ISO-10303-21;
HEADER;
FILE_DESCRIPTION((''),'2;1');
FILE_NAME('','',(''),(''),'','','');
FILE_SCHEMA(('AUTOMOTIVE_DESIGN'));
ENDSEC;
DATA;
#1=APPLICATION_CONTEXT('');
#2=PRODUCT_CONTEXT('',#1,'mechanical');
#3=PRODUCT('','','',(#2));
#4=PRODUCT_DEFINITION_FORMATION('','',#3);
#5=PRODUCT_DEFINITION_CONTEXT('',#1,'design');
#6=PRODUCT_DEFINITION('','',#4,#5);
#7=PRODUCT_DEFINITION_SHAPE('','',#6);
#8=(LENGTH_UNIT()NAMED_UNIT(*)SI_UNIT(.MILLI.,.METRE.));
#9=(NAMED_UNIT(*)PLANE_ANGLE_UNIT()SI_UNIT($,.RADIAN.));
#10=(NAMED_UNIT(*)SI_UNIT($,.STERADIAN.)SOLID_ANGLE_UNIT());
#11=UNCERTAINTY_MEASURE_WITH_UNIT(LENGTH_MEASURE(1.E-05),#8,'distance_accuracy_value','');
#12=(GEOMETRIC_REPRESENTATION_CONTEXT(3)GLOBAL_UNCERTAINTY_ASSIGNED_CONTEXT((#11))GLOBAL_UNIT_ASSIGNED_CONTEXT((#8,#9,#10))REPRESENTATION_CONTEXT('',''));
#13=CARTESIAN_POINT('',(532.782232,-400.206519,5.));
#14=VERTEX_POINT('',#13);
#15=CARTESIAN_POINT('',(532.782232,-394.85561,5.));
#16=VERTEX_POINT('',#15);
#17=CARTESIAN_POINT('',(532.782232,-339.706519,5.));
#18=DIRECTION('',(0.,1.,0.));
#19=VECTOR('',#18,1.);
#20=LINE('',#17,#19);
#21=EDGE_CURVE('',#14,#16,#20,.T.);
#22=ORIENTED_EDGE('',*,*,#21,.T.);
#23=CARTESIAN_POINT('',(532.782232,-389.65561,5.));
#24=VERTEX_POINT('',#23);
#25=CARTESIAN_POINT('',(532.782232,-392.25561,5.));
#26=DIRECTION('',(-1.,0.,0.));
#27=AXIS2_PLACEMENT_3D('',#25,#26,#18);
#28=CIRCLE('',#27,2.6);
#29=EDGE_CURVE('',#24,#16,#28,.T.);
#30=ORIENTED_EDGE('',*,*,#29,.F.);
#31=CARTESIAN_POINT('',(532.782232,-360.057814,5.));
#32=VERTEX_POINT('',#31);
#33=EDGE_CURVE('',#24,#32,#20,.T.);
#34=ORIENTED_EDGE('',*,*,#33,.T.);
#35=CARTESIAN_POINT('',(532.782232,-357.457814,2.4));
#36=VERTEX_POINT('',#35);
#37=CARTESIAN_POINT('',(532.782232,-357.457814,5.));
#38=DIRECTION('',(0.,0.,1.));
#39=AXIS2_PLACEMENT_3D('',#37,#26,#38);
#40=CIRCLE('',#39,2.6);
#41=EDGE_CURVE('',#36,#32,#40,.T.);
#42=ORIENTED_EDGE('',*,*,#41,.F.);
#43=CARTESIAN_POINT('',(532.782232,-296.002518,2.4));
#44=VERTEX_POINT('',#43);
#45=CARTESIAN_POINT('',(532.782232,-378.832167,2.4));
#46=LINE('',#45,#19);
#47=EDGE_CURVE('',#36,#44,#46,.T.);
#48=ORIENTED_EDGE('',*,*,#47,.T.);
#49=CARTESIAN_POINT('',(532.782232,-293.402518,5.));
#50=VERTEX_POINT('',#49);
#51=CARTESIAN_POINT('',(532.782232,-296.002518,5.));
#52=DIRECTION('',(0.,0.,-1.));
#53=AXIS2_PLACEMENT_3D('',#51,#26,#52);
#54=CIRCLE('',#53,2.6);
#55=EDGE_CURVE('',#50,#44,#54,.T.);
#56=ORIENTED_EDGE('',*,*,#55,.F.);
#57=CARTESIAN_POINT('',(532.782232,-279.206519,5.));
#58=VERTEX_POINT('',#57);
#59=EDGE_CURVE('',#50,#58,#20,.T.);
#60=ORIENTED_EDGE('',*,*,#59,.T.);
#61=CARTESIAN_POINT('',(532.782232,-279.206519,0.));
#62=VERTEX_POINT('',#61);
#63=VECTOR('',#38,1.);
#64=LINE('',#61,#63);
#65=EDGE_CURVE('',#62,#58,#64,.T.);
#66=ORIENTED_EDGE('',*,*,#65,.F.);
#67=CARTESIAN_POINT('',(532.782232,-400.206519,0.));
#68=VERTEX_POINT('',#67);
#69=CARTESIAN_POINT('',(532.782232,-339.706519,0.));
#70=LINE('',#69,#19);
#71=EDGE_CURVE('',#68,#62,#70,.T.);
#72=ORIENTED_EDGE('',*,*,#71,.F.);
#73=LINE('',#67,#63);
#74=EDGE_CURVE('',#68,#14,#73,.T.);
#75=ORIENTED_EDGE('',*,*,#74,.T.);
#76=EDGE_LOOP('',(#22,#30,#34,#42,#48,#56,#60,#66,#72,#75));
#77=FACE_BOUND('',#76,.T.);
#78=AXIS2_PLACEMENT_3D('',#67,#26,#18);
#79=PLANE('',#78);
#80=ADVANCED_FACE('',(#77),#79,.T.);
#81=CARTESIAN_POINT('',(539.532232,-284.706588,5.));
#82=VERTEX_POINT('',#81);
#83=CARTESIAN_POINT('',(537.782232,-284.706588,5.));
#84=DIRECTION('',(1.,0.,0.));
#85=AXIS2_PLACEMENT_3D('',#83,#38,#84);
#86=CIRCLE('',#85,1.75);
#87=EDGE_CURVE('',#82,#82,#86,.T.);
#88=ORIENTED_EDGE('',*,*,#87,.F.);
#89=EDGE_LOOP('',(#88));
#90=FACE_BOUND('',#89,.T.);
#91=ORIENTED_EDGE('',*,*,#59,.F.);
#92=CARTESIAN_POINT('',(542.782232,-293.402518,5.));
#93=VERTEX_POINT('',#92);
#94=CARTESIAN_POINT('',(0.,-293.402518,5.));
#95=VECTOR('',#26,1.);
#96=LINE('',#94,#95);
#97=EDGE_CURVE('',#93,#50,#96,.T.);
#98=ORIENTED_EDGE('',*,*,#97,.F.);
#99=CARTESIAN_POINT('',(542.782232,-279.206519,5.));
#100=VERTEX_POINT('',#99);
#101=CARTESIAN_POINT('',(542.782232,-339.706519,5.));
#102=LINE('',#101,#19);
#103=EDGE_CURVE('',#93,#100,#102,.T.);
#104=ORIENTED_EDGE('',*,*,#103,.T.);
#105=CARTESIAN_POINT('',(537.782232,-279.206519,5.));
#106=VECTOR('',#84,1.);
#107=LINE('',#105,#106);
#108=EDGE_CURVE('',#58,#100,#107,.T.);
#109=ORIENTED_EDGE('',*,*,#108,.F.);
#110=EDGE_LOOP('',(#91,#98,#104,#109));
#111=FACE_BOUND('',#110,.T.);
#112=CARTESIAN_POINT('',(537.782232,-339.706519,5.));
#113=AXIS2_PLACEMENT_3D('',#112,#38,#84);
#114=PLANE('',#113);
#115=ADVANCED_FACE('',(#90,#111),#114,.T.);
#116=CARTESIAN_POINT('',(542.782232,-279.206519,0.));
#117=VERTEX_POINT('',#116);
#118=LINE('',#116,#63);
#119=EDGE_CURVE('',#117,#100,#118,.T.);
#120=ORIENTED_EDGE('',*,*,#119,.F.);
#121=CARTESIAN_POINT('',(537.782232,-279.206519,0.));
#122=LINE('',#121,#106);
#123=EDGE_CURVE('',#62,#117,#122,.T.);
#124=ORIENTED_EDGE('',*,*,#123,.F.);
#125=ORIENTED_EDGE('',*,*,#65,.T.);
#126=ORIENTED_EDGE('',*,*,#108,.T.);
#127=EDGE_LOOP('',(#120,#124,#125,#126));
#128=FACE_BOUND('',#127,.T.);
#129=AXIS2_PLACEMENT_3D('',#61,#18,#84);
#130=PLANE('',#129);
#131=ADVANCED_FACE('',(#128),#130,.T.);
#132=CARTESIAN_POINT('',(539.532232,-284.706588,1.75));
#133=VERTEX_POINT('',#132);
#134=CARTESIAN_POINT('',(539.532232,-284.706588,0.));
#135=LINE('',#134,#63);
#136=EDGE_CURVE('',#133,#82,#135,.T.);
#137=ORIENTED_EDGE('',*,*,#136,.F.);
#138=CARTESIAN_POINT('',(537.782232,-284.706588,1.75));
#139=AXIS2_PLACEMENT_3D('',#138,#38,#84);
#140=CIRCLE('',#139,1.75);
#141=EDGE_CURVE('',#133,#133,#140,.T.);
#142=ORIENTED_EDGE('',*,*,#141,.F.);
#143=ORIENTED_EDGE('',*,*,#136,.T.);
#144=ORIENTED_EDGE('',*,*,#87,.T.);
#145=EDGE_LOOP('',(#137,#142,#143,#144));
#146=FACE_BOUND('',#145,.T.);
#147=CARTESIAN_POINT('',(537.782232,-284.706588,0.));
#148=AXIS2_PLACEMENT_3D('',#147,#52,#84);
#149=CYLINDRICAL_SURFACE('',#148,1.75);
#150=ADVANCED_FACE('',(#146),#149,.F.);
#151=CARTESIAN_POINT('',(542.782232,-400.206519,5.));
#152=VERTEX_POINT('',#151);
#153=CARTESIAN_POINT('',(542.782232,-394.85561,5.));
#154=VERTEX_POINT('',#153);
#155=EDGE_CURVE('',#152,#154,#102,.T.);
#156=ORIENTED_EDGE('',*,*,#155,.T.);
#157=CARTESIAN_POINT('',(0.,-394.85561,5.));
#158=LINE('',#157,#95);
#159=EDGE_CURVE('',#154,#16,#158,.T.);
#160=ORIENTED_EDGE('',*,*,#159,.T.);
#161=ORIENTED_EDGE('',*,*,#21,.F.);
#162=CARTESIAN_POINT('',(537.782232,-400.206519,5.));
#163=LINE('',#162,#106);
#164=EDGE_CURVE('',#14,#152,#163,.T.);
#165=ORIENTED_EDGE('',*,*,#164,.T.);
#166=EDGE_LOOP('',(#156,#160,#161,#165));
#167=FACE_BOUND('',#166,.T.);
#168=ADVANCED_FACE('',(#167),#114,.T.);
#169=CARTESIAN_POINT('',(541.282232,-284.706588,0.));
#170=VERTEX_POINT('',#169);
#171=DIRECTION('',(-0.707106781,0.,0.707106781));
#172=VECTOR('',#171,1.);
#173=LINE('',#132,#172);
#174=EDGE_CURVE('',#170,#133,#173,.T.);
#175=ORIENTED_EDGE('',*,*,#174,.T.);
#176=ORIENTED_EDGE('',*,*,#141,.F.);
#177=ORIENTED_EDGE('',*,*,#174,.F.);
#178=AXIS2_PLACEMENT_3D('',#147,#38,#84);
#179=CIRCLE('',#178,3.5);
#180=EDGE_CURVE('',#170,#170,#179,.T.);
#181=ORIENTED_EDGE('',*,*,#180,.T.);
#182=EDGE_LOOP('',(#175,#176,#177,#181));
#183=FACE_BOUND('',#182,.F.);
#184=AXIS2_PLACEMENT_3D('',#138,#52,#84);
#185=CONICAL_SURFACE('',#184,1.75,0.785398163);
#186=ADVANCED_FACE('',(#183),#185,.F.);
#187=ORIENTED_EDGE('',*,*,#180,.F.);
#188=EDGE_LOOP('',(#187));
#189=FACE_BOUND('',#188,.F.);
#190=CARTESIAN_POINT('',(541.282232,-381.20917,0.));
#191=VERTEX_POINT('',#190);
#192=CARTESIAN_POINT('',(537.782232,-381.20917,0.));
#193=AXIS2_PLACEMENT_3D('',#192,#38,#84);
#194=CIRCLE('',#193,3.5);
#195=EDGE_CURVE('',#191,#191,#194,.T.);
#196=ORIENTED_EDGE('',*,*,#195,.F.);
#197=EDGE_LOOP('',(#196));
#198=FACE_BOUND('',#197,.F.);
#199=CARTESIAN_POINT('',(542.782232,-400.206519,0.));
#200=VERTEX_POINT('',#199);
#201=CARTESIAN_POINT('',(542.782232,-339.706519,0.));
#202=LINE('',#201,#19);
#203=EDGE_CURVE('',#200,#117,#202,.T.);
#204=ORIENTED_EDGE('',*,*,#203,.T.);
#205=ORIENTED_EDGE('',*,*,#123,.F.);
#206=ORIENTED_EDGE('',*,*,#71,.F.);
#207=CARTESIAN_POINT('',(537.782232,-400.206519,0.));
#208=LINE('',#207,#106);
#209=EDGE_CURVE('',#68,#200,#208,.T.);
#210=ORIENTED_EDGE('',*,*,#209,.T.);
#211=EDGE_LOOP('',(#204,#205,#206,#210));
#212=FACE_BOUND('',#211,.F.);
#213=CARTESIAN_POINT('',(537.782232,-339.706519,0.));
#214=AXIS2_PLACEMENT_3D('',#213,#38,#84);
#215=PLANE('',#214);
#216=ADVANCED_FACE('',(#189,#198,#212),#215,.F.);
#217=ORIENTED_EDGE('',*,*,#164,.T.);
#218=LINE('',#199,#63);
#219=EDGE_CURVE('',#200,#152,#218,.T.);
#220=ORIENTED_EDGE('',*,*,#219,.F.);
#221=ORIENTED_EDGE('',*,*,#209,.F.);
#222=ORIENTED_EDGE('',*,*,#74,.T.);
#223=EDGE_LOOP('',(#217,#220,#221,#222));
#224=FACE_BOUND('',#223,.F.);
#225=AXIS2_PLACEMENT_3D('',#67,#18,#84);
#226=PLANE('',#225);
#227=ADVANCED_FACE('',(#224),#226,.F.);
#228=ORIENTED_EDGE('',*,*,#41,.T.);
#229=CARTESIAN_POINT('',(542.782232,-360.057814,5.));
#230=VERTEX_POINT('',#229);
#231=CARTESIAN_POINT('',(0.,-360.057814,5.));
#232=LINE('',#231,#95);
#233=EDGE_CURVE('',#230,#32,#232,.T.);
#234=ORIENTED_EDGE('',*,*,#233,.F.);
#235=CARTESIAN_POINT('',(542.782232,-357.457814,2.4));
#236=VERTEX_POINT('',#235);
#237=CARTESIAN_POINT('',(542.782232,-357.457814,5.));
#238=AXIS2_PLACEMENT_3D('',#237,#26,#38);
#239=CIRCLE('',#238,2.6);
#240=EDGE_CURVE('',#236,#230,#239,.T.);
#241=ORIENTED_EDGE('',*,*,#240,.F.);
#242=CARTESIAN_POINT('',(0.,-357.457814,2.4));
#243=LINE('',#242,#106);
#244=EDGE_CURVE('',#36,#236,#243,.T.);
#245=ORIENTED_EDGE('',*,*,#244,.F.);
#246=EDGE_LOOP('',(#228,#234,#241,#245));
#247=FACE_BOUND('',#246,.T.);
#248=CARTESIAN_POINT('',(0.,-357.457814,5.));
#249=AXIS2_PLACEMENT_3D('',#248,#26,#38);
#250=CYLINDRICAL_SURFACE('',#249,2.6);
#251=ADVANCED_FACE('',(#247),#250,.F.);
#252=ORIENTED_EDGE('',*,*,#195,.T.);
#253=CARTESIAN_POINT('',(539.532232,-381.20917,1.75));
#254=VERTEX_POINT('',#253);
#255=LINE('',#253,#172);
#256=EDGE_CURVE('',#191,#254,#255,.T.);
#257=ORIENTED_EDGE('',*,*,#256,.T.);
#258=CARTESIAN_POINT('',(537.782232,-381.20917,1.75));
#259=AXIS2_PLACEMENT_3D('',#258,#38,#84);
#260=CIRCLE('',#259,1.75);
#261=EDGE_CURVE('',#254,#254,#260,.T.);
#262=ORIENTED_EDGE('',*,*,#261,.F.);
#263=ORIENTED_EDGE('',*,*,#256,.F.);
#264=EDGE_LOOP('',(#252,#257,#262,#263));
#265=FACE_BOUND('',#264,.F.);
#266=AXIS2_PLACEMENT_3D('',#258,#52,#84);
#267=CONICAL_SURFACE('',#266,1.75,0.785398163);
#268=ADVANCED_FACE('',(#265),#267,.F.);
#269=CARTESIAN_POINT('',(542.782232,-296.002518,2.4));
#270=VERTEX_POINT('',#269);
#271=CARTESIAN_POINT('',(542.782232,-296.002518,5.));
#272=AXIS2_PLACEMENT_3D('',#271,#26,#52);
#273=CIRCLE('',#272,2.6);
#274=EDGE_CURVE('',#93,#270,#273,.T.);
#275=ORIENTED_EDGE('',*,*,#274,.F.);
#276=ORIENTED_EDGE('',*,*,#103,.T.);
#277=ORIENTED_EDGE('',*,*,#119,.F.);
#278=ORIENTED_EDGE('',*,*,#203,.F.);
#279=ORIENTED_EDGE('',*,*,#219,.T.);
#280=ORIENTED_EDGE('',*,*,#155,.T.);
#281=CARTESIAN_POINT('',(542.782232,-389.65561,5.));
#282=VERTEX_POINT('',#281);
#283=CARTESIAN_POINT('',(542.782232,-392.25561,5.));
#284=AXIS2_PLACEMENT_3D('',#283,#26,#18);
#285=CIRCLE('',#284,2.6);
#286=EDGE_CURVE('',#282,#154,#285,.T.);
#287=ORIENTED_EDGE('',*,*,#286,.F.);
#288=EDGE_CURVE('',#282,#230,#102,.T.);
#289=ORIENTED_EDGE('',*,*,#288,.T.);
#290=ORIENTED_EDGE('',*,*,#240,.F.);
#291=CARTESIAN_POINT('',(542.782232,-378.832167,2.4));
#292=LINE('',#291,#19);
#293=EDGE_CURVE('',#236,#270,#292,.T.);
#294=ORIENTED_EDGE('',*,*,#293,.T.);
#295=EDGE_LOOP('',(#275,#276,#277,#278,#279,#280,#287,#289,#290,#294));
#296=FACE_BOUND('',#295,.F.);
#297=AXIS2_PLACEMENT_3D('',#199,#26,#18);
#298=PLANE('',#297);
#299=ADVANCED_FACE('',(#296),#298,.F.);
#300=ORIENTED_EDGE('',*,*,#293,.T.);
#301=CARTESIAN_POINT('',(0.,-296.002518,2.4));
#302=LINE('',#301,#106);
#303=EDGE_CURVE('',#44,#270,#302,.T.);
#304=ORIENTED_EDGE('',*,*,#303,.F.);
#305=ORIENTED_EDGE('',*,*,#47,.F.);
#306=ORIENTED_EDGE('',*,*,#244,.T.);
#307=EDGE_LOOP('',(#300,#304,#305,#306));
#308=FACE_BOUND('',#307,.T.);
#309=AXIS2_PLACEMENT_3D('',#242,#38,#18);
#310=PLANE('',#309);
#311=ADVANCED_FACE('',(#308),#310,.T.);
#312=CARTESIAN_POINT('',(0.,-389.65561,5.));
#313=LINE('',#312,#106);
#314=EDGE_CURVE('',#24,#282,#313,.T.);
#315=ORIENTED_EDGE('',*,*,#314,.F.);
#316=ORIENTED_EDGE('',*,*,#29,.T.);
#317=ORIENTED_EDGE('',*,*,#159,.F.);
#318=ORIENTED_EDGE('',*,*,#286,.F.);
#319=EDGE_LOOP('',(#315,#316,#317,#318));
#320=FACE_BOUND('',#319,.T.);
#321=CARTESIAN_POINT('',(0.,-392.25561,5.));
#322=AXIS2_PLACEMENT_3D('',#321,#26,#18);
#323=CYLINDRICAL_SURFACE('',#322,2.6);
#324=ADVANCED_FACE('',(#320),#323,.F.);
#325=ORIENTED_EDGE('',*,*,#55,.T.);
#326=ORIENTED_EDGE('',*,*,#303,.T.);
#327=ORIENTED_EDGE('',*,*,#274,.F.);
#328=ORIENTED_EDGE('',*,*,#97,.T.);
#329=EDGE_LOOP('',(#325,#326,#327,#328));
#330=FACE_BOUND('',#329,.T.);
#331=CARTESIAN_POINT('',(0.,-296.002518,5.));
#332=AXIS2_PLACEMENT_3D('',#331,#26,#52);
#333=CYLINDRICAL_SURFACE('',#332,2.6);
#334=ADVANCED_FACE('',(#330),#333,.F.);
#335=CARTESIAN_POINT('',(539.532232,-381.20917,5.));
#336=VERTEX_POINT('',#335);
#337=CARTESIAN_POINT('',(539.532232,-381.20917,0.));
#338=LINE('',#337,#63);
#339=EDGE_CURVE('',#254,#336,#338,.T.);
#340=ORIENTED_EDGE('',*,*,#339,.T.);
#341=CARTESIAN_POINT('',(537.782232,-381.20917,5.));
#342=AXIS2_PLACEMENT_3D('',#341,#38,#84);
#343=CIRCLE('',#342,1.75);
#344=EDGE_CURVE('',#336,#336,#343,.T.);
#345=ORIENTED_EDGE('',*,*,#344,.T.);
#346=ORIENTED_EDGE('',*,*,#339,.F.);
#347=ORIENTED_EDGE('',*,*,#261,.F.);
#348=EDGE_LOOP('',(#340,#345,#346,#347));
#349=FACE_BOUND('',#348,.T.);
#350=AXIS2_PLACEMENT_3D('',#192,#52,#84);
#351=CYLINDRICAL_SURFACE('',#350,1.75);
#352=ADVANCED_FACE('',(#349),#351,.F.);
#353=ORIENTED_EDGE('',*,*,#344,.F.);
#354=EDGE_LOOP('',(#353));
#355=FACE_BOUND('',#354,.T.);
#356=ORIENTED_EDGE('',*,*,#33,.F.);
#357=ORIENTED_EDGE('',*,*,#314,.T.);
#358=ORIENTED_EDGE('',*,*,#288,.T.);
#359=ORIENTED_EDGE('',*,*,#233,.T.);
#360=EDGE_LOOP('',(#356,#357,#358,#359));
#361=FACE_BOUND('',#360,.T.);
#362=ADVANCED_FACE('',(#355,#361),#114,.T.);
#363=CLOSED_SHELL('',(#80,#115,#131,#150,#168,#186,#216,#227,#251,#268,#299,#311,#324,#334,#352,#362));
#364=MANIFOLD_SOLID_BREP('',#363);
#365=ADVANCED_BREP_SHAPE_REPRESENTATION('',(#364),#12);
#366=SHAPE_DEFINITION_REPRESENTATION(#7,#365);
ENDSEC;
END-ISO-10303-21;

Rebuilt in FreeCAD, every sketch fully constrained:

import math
import FreeCAD as App
import Part
import Sketcher


def edges_at(feature, points):
    """Names of the edges that pass closest to the given points."""
    edges = feature.Shape.Edges
    near = lambda p: min(range(len(edges)), key=lambda i: edges[i].distToShape(Part.Vertex(*p))[0])
    return sorted({f"Edge{near(p) + 1}" for p in points})

doc = App.newDocument("Part")
body = doc.addObject("PartDesign::Body", "Body")

# Sketch on XY plane
sketch1 = body.newObject("Sketcher::SketchObject", "Sketch")
sketch1.AttachmentSupport = (doc.getObject("XY_Plane"), [""])
sketch1.MapMode = "FlatFace"
sketch1.addGeometry(Part.LineSegment(App.Vector(532.8, -279.2, 0), App.Vector(532.8, -400.2, 0)), False)
sketch1.addGeometry(Part.LineSegment(App.Vector(532.8, -400.2, 0), App.Vector(542.8, -400.2, 0)), False)
sketch1.addGeometry(Part.LineSegment(App.Vector(542.8, -400.2, 0), App.Vector(542.8, -279.2, 0)), False)
sketch1.addGeometry(Part.LineSegment(App.Vector(542.8, -279.2, 0), App.Vector(532.8, -279.2, 0)), False)
sketch1.addGeometry(Part.Circle(App.Vector(537.8, -381.2, 0), App.Vector(0, 0, 1), 1.8), False)
sketch1.addGeometry(Part.Circle(App.Vector(537.8, -284.7, 0), App.Vector(0, 0, 1), 1.8), False)
sketch1.addConstraint(Sketcher.Constraint("Coincident", 0, 2, 1, 1))
sketch1.addConstraint(Sketcher.Constraint("Coincident", 1, 2, 2, 1))
sketch1.addConstraint(Sketcher.Constraint("Coincident", 2, 2, 3, 1))
sketch1.addConstraint(Sketcher.Constraint("Coincident", 3, 2, 0, 1))
sketch1.addConstraint(Sketcher.Constraint("Vertical", 0))
sketch1.addConstraint(Sketcher.Constraint("Horizontal", 1))
sketch1.addConstraint(Sketcher.Constraint("Vertical", 2))
sketch1.addConstraint(Sketcher.Constraint("Horizontal", 3))
sketch1.addConstraint(Sketcher.Constraint("Equal", 4, 5))
sketch1.addConstraint(Sketcher.Constraint("Vertical", 4, 3, 5, 3))
sketch1.addConstraint(Sketcher.Constraint("Diameter", 4, 3.5))
sketch1.addConstraint(Sketcher.Constraint("DistanceX", 1, 1, 1, 2, 10.0))
sketch1.addConstraint(Sketcher.Constraint("DistanceY", 0, 2, 0, 1, 121.0))
sketch1.addConstraint(Sketcher.Constraint("DistanceX", 0, 2, 4, 3, 5.0))
sketch1.addConstraint(Sketcher.Constraint("DistanceX", -1, 1, 4, 3, 537.782232))
sketch1.addConstraint(Sketcher.Constraint("DistanceY", 4, 3, -1, 1, 381.20917))
sketch1.addConstraint(Sketcher.Constraint("DistanceY", 5, 3, -1, 1, 284.706588))
sketch1.addConstraint(Sketcher.Constraint("DistanceY", 0, 2, -1, 1, 400.206519))
pad1 = body.newObject("PartDesign::Pad", "Pad")
pad1.Profile = sketch1
pad1.Length = 5

# Sketch on YZ plane
sketch2 = body.newObject("Sketcher::SketchObject", "Sketch001")
sketch2.AttachmentSupport = (doc.getObject("YZ_Plane"), [""])
sketch2.MapMode = "FlatFace"
sketch2.addGeometry(Part.Circle(App.Vector(-392.3, 5, 0), App.Vector(0, 0, 1), 2.6), False)
sketch2.addGeometry(Part.ArcOfCircle(Part.Circle(App.Vector(-357.5, 5, 0), App.Vector(0, 0, 1), 2.6), math.radians(90), math.radians(270)), False)
sketch2.addGeometry(Part.LineSegment(App.Vector(-357.5, 2.4, 0), App.Vector(-296, 2.4, 0)), False)
sketch2.addGeometry(Part.ArcOfCircle(Part.Circle(App.Vector(-296, 5, 0), App.Vector(0, 0, 1), 2.6), math.radians(-90), math.radians(90)), False)
sketch2.addGeometry(Part.LineSegment(App.Vector(-296, 7.6, 0), App.Vector(-357.5, 7.6, 0)), False)
sketch2.addConstraint(Sketcher.Constraint("Tangent", 1, 2, 2, 1))
sketch2.addConstraint(Sketcher.Constraint("Tangent", 2, 2, 3, 1))
sketch2.addConstraint(Sketcher.Constraint("Tangent", 3, 2, 4, 1))
sketch2.addConstraint(Sketcher.Constraint("Tangent", 4, 2, 1, 1))
sketch2.addConstraint(Sketcher.Constraint("Horizontal", 2))
sketch2.addConstraint(Sketcher.Constraint("Horizontal", 4))
sketch2.addConstraint(Sketcher.Constraint("Equal", 0, 1))
sketch2.addConstraint(Sketcher.Constraint("Horizontal", 0, 3, 1, 3))
sketch2.addConstraint(Sketcher.Constraint("Diameter", 0, 5.2))
sketch2.addConstraint(Sketcher.Constraint("DistanceY", -1, 1, 0, 3, 5.0))
sketch2.addConstraint(Sketcher.Constraint("DistanceX", 2, 1, 2, 2, 61.455296))
sketch2.addConstraint(Sketcher.Constraint("DistanceX", 0, 3, -1, 1, 392.25561))
sketch2.addConstraint(Sketcher.Constraint("DistanceX", 3, 3, -1, 1, 296.002518))
pocket1 = body.newObject("PartDesign::Pocket", "Pocket")
pocket1.Profile = sketch2
pocket1.Type = "ThroughAll"
pocket1.Midplane = True
doc.recompute()

chamfer = body.newObject("PartDesign::Chamfer", "Chamfer")
chamfer.Base = (pocket1, edges_at(pocket1, [(536.032, -381.209, 0), (536.032, -284.707, 0)]))
chamfer.Size = 1.75

doc.recompute()
